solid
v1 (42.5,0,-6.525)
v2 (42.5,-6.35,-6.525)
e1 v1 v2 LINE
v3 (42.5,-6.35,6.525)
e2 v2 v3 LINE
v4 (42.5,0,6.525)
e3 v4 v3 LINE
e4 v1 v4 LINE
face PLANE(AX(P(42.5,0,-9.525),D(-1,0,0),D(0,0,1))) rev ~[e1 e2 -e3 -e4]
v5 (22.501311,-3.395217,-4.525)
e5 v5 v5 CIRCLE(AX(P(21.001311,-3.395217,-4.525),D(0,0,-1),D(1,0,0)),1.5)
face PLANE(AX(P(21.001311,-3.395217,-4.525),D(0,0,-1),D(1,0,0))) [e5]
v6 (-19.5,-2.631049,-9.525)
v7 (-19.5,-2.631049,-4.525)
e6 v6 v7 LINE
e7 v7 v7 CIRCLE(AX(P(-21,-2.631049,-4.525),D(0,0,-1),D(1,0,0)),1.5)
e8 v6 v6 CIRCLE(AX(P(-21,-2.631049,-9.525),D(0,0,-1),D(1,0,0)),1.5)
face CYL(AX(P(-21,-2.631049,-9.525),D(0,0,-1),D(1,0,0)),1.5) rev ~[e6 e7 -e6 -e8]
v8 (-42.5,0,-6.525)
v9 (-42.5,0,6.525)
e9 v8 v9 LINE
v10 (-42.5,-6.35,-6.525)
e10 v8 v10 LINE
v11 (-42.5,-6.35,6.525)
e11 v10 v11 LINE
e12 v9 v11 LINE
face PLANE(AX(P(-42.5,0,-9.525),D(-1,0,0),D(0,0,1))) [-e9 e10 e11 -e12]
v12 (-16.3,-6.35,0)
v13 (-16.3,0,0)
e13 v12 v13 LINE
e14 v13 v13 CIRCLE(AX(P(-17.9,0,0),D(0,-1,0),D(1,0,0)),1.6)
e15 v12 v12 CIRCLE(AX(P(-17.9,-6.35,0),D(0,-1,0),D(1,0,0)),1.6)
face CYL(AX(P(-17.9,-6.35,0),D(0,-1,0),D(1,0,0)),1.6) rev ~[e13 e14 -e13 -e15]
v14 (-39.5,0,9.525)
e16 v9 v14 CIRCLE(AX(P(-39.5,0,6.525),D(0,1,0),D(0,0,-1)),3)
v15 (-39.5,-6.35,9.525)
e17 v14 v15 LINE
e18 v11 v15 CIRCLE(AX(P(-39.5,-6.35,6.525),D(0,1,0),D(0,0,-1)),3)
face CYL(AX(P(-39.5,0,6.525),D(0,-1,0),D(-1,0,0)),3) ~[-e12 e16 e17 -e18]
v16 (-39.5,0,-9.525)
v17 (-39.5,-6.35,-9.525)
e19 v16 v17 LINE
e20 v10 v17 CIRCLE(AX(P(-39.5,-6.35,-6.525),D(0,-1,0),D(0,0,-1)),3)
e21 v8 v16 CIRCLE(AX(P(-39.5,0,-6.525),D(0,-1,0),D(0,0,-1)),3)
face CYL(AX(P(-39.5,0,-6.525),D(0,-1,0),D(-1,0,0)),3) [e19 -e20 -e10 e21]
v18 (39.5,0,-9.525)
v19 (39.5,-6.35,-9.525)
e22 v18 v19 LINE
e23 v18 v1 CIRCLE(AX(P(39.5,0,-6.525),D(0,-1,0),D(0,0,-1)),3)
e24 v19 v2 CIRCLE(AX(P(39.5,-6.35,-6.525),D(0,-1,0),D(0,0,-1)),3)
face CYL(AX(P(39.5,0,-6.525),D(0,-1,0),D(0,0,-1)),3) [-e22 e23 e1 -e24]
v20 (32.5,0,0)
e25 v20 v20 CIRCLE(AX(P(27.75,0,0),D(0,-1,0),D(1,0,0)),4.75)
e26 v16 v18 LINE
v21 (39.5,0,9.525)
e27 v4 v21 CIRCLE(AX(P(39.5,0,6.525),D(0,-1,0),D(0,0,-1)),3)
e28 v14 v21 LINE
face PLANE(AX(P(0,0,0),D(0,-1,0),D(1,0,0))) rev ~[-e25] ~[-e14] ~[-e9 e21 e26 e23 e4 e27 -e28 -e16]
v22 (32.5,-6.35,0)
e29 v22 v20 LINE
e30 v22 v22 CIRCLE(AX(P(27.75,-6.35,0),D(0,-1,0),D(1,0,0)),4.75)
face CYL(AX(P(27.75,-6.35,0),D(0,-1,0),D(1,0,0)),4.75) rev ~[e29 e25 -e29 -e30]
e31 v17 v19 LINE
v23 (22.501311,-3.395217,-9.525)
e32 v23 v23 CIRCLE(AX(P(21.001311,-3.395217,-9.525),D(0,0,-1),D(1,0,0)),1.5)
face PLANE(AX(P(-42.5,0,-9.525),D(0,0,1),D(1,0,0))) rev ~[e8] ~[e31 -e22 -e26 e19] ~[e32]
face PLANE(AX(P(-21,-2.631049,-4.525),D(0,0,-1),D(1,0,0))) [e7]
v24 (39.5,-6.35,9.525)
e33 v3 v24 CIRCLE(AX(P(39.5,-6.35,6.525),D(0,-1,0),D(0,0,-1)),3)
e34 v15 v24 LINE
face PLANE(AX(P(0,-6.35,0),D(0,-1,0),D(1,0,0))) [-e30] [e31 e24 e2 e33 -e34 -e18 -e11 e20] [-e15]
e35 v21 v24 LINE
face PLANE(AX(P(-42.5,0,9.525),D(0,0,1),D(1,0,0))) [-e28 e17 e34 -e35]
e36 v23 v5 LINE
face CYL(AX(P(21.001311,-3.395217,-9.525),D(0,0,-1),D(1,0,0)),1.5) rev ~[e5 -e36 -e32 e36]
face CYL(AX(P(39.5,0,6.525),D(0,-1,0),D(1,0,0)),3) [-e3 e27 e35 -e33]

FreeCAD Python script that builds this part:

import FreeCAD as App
import Part
import Sketcher
from FreeCAD import Vector


def edges_at(feature, points):
    """Names of the edges that pass closest to the given points."""
    edges = feature.Shape.Edges
    near = lambda p: min(range(len(edges)), key=lambda i: edges[i].distToShape(Part.Vertex(*p))[0])
    return sorted({f"Edge{near(p) + 1}" for p in points})

doc = App.newDocument("Part")
body = doc.addObject("PartDesign::Body", "Body")

# Sketch on XZ plane
sketch1 = body.newObject("Sketcher::SketchObject", "Sketch")
sketch1.AttachmentSupport = (doc.getObject("XZ_Plane"), [""])
sketch1.MapMode = "FlatFace"
sketch1.addGeometry([
    Part.LineSegment(Vector(-42, 10, 0), Vector(-42, -10, 0)),
    Part.LineSegment(Vector(-42, -10, 0), Vector(42, -10, 0)),
    Part.LineSegment(Vector(42, -10, 0), Vector(42, 10, 0)),
    Part.LineSegment(Vector(42, 10, 0), Vector(-42, 10, 0)),
], False)
sketch1.addConstraint([
    Sketcher.Constraint("Coincident", 0, 2, 1, 1),
    Sketcher.Constraint("Coincident", 1, 2, 2, 1),
    Sketcher.Constraint("Coincident", 2, 2, 3, 1),
    Sketcher.Constraint("Coincident", 3, 2, 0, 1),
    Sketcher.Constraint("Vertical", 0),
    Sketcher.Constraint("Horizontal", 1),
    Sketcher.Constraint("Vertical", 2),
    Sketcher.Constraint("Horizontal", 3),
    Sketcher.Constraint("Symmetric", 0, 2, 2, 2, -1, 1),
    Sketcher.Constraint("DistanceX", 1, 1, 1, 2, 85.0),
    Sketcher.Constraint("DistanceY", 0, 2, 0, 1, 19.05),
])
pad1 = body.newObject("PartDesign::Pad", "Pad")
pad1.Profile = sketch1
pad1.Length = 6.35
doc.recompute()

fillet = body.newObject("PartDesign::Fillet", "Fillet")
fillet.Base = (pad1, edges_at(pad1, [
    (-42.5, -3.175, 9.525),
    (42.5, -3.175, 9.525),
    (42.5, -3.175, -9.525),
    (-42.5, -3.175, -9.525),
]))
fillet.Radius = 3

# Sketch on XY plane
sketch2 = body.newObject("Sketcher::SketchObject", "Sketch001")
sketch2.AttachmentSupport = (doc.getObject("XY_Plane"), [""])
sketch2.MapMode = "FlatFace"
sketch2.AttachmentOffset = App.Placement(Vector(0, 0, -9.525), App.Rotation())
sketch2.addGeometry([
    Part.Circle(Vector(-21, -2.6, 0), Vector(0, 0, 1), 1.5),
    Part.Circle(Vector(21, -3.4, 0), Vector(0, 0, 1), 1.5),
], False)
sketch2.addConstraint([
    Sketcher.Constraint("Equal", 0, 1),
    Sketcher.Constraint("Diameter", 0, 3.0),
    Sketcher.Constraint("DistanceX", 0, 3, -1, 1, 21.0),
    Sketcher.Constraint("DistanceY", 0, 3, -1, 1, 2.631049),
    Sketcher.Constraint("DistanceX", -1, 1, 1, 3, 21.001311),
    Sketcher.Constraint("DistanceY", 1, 3, 0, 3, 0.764168),
])
pocket1 = body.newObject("PartDesign::Pocket", "Pocket")
pocket1.Profile = sketch2
pocket1.Length = 5
pocket1.Reversed = True

# Sketch on XZ plane
sketch3 = body.newObject("Sketcher::SketchObject", "Sketch002")
sketch3.AttachmentSupport = (doc.getObject("XZ_Plane"), [""])
sketch3.MapMode = "FlatFace"
sketch3.AttachmentOffset = App.Placement(Vector(0, 0, 6.35), App.Rotation())
sketch3.addGeometry([
    Part.Circle(Vector(-17.9, 0, 0), Vector(0, 0, 1), 1.6),
    Part.Circle(Vector(27.8, 0, 0), Vector(0, 0, 1), 4.8),
], False)
sketch3.addConstraint([
    Sketcher.Constraint("PointOnObject", 0, 3, -1),
    Sketcher.Constraint("PointOnObject", 1, 3, -1),
    Sketcher.Constraint("Diameter", 0, 3.2),
    Sketcher.Constraint("Diameter", 1, 9.5),
    Sketcher.Constraint("DistanceX", 0, 3, -1, 1, 17.9),
    Sketcher.Constraint("DistanceX", -1, 1, 1, 3, 27.75),
])
pocket2 = body.newObject("PartDesign::Pocket", "Pocket001")
pocket2.Profile = sketch3
pocket2.Length = 25

doc.recompute()
